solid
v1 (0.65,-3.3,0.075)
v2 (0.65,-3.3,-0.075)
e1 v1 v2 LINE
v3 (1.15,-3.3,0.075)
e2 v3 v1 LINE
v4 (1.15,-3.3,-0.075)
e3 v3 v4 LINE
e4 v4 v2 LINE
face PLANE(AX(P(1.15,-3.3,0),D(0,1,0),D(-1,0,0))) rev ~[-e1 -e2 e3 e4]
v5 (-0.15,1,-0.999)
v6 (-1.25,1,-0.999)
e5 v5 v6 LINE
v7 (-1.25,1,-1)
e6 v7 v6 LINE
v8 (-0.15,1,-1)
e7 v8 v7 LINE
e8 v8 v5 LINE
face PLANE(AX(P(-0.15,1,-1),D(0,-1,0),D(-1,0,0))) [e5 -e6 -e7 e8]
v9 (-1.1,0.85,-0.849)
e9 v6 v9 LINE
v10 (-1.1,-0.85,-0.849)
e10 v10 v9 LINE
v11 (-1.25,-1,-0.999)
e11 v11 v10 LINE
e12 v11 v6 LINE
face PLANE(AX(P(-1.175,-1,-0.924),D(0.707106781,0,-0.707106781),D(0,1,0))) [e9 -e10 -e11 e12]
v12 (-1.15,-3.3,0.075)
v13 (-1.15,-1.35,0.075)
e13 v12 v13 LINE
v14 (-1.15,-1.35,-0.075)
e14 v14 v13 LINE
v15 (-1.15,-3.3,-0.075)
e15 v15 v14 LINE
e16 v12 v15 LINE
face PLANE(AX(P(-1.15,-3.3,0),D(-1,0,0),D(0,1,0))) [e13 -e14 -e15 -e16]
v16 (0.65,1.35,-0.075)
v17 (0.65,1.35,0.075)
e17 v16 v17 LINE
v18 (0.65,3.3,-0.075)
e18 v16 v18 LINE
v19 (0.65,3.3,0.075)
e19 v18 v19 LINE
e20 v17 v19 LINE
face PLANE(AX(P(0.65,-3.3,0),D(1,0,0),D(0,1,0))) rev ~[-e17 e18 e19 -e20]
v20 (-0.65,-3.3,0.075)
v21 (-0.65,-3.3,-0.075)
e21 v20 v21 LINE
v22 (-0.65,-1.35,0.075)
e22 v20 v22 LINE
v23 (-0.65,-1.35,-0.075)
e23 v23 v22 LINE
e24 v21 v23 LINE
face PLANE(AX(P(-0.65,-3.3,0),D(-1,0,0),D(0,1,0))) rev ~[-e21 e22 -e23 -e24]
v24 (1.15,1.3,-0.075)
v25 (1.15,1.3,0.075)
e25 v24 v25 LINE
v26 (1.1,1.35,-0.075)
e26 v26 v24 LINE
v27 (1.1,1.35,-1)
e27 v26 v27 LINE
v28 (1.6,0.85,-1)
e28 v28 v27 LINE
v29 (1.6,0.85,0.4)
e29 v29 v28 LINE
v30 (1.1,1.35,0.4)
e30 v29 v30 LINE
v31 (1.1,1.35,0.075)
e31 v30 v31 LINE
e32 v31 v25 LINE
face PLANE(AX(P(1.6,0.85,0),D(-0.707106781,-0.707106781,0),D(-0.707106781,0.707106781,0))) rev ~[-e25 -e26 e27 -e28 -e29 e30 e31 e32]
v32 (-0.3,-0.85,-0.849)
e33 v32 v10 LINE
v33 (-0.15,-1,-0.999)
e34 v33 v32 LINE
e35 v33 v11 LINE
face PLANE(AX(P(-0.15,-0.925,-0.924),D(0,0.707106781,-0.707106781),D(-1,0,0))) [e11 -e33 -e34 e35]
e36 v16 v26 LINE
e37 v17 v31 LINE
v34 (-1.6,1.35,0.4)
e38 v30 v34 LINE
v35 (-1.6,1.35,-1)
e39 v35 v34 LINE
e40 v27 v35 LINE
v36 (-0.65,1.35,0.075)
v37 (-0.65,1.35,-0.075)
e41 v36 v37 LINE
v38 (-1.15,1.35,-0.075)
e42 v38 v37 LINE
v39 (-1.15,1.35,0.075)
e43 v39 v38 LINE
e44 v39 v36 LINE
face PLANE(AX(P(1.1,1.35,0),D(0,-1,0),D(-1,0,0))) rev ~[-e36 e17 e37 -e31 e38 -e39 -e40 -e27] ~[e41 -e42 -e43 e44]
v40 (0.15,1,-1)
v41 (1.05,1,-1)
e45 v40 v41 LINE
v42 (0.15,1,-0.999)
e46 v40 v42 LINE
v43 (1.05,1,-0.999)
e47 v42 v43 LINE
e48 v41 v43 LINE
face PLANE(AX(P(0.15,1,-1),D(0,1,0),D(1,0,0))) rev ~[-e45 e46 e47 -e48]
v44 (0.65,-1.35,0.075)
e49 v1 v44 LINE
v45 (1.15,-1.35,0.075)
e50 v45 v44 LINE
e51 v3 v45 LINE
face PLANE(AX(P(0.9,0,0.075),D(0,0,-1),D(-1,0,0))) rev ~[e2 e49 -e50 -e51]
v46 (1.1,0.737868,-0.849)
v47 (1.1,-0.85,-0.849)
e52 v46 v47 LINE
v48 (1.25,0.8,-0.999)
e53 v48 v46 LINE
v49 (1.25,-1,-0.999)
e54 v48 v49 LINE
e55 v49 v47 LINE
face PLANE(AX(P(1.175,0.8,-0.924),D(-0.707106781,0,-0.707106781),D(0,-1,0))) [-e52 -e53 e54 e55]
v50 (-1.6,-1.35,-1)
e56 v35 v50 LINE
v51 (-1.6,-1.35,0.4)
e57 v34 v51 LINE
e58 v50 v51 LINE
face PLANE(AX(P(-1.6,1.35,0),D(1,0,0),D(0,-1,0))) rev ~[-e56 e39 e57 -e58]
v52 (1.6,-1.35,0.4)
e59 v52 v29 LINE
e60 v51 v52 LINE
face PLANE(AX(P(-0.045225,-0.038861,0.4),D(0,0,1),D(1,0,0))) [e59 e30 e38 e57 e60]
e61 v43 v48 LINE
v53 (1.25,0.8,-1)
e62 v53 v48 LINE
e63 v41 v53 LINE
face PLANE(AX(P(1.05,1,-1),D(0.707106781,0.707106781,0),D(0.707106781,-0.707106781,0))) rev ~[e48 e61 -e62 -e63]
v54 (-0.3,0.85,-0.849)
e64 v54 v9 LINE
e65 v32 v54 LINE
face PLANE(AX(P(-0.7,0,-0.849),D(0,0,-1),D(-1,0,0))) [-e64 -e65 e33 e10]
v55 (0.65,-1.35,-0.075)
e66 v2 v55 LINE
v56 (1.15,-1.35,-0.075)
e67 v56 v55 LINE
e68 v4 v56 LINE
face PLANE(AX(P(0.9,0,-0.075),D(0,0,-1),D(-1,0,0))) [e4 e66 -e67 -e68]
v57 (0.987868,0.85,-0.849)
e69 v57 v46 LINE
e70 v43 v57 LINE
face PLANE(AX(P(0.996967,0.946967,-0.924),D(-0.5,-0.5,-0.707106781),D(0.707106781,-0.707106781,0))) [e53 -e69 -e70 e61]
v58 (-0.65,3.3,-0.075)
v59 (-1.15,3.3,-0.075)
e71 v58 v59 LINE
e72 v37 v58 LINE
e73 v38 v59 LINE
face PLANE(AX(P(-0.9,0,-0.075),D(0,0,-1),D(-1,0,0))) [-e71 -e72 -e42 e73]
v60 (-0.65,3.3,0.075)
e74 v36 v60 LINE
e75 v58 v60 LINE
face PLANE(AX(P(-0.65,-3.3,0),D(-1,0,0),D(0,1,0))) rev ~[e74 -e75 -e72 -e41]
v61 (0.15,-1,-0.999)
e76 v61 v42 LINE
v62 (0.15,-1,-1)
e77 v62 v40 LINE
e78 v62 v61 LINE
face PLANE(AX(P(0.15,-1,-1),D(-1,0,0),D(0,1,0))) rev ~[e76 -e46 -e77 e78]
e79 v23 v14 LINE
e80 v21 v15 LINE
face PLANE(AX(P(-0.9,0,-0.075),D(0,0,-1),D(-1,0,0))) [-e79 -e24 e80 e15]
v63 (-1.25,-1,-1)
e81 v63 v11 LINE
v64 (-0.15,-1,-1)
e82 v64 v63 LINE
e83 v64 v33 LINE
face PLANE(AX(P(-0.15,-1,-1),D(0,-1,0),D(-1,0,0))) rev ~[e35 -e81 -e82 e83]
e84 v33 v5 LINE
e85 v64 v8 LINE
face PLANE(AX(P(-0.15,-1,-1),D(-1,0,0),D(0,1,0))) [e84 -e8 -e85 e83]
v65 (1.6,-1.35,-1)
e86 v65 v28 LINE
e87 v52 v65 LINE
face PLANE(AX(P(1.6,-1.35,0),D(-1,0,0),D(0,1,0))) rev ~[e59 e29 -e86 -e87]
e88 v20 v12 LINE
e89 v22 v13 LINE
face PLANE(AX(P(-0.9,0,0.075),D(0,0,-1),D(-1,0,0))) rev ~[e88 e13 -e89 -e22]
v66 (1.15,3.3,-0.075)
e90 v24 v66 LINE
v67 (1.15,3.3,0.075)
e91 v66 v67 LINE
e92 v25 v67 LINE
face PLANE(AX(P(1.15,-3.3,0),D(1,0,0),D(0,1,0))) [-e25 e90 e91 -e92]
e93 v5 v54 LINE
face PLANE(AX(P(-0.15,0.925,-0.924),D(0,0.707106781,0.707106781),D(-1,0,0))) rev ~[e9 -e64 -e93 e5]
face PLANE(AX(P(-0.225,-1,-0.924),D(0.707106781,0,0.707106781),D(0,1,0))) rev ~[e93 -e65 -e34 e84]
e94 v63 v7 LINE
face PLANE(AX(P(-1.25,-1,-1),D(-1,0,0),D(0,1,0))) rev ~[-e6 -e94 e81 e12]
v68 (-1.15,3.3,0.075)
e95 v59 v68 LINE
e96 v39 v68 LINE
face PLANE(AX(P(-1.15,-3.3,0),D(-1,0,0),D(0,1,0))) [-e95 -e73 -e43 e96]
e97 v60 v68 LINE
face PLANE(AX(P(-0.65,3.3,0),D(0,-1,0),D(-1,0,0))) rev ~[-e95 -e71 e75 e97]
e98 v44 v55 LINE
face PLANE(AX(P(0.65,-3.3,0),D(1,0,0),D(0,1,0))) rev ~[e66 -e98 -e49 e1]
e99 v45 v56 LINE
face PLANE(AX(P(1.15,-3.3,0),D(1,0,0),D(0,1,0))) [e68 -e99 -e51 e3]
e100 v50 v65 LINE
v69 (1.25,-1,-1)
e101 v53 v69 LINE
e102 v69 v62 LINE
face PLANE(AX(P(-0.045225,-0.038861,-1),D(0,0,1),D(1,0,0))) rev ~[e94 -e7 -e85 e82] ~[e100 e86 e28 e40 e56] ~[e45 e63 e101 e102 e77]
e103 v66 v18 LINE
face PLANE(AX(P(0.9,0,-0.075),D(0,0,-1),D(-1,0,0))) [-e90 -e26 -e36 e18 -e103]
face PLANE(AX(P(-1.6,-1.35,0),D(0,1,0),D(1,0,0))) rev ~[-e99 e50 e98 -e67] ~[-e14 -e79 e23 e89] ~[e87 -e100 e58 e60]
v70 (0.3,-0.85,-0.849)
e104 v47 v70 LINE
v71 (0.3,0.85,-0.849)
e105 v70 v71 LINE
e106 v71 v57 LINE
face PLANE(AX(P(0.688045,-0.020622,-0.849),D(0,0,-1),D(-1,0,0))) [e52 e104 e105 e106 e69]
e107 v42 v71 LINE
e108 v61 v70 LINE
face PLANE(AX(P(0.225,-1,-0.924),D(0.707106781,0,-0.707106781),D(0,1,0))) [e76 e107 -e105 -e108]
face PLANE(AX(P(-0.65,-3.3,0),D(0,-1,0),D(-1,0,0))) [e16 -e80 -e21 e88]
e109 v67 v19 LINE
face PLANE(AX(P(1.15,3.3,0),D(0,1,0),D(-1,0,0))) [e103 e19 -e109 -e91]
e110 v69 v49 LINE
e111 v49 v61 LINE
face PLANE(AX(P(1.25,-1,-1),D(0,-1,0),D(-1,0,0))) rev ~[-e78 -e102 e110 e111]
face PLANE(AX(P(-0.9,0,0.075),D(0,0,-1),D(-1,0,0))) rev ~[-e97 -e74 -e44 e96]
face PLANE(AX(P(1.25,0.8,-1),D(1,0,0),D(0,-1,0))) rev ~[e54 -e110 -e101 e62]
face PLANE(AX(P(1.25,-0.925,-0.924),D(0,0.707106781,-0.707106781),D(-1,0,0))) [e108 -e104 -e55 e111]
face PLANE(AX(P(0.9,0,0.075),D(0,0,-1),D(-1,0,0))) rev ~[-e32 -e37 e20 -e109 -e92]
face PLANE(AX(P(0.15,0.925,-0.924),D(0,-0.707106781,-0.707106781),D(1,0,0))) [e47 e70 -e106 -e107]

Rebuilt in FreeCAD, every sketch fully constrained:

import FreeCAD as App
import Part
import Sketcher
from FreeCAD import Vector
Q = App.Units.Quantity


def edges_at(feature, points):
    """Names of the edges that pass closest to the given points."""
    edges = feature.Shape.Edges
    near = lambda p: min(range(len(edges)), key=lambda i: edges[i].distToShape(Part.Vertex(*p))[0])
    return sorted({f"Edge{near(p) + 1}" for p in points})


def add_polygon(sketch, points):
    """Adds a closed chain of lines whose ends are joined by coincident constraints."""
    first, n = sketch.GeometryCount, len(points)
    for a, b in zip(points, points[1:] + points[:1]):
        sketch.addGeometry(Part.LineSegment(App.Vector(*a, 0), App.Vector(*b, 0)), False)
    for i in range(n):
        sketch.addConstraint(Sketcher.Constraint("Coincident", first + i, 2, first + (i + 1) % n, 1))

doc = App.newDocument("Part")
body = doc.addObject("PartDesign::Body", "Body")
body.AllowCompound = True

# Sketch on XY plane
sketch1 = body.newObject("Sketcher::SketchObject", "Sketch")
sketch1.AttachmentSupport = (doc.getObject("XY_Plane"), [""])
sketch1.MapMode = "FlatFace"
add_polygon(sketch1, [(-1.15, 3.3), (-1.15, -3.3), (-0.65, -3.3), (-0.65, 3.3)])  # lines 0-3
add_polygon(sketch1, [(0.65, 3.3), (0.65, -3.3), (1.15, -3.3), (1.15, 3.3)])  # lines 4-7
sketch1.addConstraint(Sketcher.Constraint("Vertical", 0))
sketch1.addConstraint(Sketcher.Constraint("Horizontal", 1))
sketch1.addConstraint(Sketcher.Constraint("Vertical", 2))
sketch1.addConstraint(Sketcher.Constraint("Horizontal", 3))
sketch1.addConstraint(Sketcher.Constraint("Vertical", 4))
sketch1.addConstraint(Sketcher.Constraint("Horizontal", 5))
sketch1.addConstraint(Sketcher.Constraint("Vertical", 6))
sketch1.addConstraint(Sketcher.Constraint("Horizontal", 7))
sketch1.addConstraint(Sketcher.Constraint("Symmetric", 2, 2, 4, 2, -1, 1))
sketch1.addConstraint(Sketcher.Constraint("Symmetric", 0, 2, 6, 2, -1, 1))
sketch1.addConstraint(Sketcher.Constraint("Horizontal", 1, 2, 4, 2))
sketch1.addConstraint(Sketcher.Constraint("DistanceX", 1, 1, 1, 2, 0.5))
sketch1.addConstraint(Sketcher.Constraint("DistanceY", 0, 2, 0, 1, 6.6))
sketch1.addConstraint(Sketcher.Constraint("DistanceX", 1, 2, 4, 2, 1.3))
pad1 = body.newObject("PartDesign::Pad", "Pad")
pad1.Profile = sketch1
pad1.Length = 0.15
pad1.Midplane = True
body2 = doc.addObject("PartDesign::Body", "Body001")

# Sketch on XY plane
sketch2 = body2.newObject("Sketcher::SketchObject", "Sketch001")
sketch2.AttachmentSupport = (doc.getObject("XY_Plane001"), [""])
sketch2.MapMode = "FlatFace"
add_polygon(sketch2, [(1.6, 1.4), (-1.1, 1.4), (-1.6, 0.8), (-1.6, -1.4), (1.6, -1.4)])  # lines 0-4
sketch2.addConstraint(Sketcher.Constraint("Horizontal", 0))
sketch2.addConstraint(Sketcher.Constraint("Vertical", 2))
sketch2.addConstraint(Sketcher.Constraint("Horizontal", 3))
sketch2.addConstraint(Sketcher.Constraint("Vertical", 4))
sketch2.addConstraint(Sketcher.Constraint("Symmetric", 2, 2, 4, 2, -1, 1))
sketch2.addConstraint(Sketcher.Constraint("Equal", 0, 4))
sketch2.addConstraint(Sketcher.Constraint("Angle", 1, Q("-135 deg")))
sketch2.addConstraint(Sketcher.Constraint("DistanceX", 0, 2, 0, 1, 2.7))
sketch2.addConstraint(Sketcher.Constraint("DistanceX", 3, 1, 3, 2, 3.2))
pad2 = body2.newObject("PartDesign::Pad", "Pad001")
pad2.Profile = sketch2
pad2.Type = "TwoLengths"
pad2.Length = 1
pad2.Length2 = 0.4

# Sketch on XY plane
sketch3 = body2.newObject("Sketcher::SketchObject", "Sketch002")
sketch3.AttachmentSupport = (doc.getObject("XY_Plane001"), [""])
sketch3.MapMode = "FlatFace"
sketch3.AttachmentOffset = App.Placement(Vector(0, 0, 1), App.Rotation())
add_polygon(sketch3, [(-1.25, -1), (-0.15, -1), (-0.15, 1), (-1.05, 1), (-1.25, 0.8)])  # lines 0-4
add_polygon(sketch3, [(0.15, 1), (0.15, -1), (1.25, -1), (1.25, 1)])  # lines 5-8
sketch3.addConstraint(Sketcher.Constraint("Horizontal", 0))
sketch3.addConstraint(Sketcher.Constraint("Vertical", 1))
sketch3.addConstraint(Sketcher.Constraint("Horizontal", 2))
sketch3.addConstraint(Sketcher.Constraint("Vertical", 4))
sketch3.addConstraint(Sketcher.Constraint("Vertical", 5))
sketch3.addConstraint(Sketcher.Constraint("Horizontal", 6))
sketch3.addConstraint(Sketcher.Constraint("Vertical", 7))
sketch3.addConstraint(Sketcher.Constraint("Horizontal", 8))
sketch3.addConstraint(Sketcher.Constraint("Symmetric", 1, 2, 5, 2, -1, 1))
sketch3.addConstraint(Sketcher.Constraint("Symmetric", 4, 2, 7, 2, -1, 1))
sketch3.addConstraint(Sketcher.Constraint("Horizontal", 4, 2, 5, 2))
sketch3.addConstraint(Sketcher.Constraint("DistanceY", 1, 1, 1, 2, 2.0))
sketch3.addConstraint(Sketcher.Constraint("Angle", 3, Q("-135 deg")))
sketch3.addConstraint(Sketcher.Constraint("DistanceX", 0, 1, 0, 2, 1.1))
sketch3.addConstraint(Sketcher.Constraint("DistanceX", 2, 2, 2, 1, 0.9))
sketch3.addConstraint(Sketcher.Constraint("DistanceX", 0, 2, 5, 2, 0.3))
pocket1 = body2.newObject("PartDesign::Pocket", "Pocket")
pocket1.Profile = sketch3
pocket1.Length = 0.151
doc.recompute()

chamfer = body2.newObject("PartDesign::Chamfer", "Chamfer")
chamfer.Base = (pocket1, edges_at(pocket1, [
    (-1.15, 0.9, 0.849),
    (-0.6, 1, 0.849),
    (-1.25, -0.1, 0.849),
    (0.15, 0, 0.849),
    (0.7, 1, 0.849),
    (1.25, 0, 0.849),
    (-0.15, 0, 0.849),
    (0.7, -1, 0.849),
    (-0.7, -1, 0.849),
]))
chamfer.Size = 0.15
doc.recompute()

boolean = body2.newObject("PartDesign::Boolean", "Boolean")
boolean.Type = "Fuse"
boolean.addObjects([body])
body3 = doc.addObject("PartDesign::Body", "Body002")
doc.recompute()

body2.Placement = App.Placement(Vector(0, 0, 0), App.Rotation(Vector(0, 1, 0), 180))
boolean2 = body3.newObject("PartDesign::Boolean", "Boolean001")
boolean2.Type = "Fuse"
boolean2.addObjects([body2])

doc.recompute()
